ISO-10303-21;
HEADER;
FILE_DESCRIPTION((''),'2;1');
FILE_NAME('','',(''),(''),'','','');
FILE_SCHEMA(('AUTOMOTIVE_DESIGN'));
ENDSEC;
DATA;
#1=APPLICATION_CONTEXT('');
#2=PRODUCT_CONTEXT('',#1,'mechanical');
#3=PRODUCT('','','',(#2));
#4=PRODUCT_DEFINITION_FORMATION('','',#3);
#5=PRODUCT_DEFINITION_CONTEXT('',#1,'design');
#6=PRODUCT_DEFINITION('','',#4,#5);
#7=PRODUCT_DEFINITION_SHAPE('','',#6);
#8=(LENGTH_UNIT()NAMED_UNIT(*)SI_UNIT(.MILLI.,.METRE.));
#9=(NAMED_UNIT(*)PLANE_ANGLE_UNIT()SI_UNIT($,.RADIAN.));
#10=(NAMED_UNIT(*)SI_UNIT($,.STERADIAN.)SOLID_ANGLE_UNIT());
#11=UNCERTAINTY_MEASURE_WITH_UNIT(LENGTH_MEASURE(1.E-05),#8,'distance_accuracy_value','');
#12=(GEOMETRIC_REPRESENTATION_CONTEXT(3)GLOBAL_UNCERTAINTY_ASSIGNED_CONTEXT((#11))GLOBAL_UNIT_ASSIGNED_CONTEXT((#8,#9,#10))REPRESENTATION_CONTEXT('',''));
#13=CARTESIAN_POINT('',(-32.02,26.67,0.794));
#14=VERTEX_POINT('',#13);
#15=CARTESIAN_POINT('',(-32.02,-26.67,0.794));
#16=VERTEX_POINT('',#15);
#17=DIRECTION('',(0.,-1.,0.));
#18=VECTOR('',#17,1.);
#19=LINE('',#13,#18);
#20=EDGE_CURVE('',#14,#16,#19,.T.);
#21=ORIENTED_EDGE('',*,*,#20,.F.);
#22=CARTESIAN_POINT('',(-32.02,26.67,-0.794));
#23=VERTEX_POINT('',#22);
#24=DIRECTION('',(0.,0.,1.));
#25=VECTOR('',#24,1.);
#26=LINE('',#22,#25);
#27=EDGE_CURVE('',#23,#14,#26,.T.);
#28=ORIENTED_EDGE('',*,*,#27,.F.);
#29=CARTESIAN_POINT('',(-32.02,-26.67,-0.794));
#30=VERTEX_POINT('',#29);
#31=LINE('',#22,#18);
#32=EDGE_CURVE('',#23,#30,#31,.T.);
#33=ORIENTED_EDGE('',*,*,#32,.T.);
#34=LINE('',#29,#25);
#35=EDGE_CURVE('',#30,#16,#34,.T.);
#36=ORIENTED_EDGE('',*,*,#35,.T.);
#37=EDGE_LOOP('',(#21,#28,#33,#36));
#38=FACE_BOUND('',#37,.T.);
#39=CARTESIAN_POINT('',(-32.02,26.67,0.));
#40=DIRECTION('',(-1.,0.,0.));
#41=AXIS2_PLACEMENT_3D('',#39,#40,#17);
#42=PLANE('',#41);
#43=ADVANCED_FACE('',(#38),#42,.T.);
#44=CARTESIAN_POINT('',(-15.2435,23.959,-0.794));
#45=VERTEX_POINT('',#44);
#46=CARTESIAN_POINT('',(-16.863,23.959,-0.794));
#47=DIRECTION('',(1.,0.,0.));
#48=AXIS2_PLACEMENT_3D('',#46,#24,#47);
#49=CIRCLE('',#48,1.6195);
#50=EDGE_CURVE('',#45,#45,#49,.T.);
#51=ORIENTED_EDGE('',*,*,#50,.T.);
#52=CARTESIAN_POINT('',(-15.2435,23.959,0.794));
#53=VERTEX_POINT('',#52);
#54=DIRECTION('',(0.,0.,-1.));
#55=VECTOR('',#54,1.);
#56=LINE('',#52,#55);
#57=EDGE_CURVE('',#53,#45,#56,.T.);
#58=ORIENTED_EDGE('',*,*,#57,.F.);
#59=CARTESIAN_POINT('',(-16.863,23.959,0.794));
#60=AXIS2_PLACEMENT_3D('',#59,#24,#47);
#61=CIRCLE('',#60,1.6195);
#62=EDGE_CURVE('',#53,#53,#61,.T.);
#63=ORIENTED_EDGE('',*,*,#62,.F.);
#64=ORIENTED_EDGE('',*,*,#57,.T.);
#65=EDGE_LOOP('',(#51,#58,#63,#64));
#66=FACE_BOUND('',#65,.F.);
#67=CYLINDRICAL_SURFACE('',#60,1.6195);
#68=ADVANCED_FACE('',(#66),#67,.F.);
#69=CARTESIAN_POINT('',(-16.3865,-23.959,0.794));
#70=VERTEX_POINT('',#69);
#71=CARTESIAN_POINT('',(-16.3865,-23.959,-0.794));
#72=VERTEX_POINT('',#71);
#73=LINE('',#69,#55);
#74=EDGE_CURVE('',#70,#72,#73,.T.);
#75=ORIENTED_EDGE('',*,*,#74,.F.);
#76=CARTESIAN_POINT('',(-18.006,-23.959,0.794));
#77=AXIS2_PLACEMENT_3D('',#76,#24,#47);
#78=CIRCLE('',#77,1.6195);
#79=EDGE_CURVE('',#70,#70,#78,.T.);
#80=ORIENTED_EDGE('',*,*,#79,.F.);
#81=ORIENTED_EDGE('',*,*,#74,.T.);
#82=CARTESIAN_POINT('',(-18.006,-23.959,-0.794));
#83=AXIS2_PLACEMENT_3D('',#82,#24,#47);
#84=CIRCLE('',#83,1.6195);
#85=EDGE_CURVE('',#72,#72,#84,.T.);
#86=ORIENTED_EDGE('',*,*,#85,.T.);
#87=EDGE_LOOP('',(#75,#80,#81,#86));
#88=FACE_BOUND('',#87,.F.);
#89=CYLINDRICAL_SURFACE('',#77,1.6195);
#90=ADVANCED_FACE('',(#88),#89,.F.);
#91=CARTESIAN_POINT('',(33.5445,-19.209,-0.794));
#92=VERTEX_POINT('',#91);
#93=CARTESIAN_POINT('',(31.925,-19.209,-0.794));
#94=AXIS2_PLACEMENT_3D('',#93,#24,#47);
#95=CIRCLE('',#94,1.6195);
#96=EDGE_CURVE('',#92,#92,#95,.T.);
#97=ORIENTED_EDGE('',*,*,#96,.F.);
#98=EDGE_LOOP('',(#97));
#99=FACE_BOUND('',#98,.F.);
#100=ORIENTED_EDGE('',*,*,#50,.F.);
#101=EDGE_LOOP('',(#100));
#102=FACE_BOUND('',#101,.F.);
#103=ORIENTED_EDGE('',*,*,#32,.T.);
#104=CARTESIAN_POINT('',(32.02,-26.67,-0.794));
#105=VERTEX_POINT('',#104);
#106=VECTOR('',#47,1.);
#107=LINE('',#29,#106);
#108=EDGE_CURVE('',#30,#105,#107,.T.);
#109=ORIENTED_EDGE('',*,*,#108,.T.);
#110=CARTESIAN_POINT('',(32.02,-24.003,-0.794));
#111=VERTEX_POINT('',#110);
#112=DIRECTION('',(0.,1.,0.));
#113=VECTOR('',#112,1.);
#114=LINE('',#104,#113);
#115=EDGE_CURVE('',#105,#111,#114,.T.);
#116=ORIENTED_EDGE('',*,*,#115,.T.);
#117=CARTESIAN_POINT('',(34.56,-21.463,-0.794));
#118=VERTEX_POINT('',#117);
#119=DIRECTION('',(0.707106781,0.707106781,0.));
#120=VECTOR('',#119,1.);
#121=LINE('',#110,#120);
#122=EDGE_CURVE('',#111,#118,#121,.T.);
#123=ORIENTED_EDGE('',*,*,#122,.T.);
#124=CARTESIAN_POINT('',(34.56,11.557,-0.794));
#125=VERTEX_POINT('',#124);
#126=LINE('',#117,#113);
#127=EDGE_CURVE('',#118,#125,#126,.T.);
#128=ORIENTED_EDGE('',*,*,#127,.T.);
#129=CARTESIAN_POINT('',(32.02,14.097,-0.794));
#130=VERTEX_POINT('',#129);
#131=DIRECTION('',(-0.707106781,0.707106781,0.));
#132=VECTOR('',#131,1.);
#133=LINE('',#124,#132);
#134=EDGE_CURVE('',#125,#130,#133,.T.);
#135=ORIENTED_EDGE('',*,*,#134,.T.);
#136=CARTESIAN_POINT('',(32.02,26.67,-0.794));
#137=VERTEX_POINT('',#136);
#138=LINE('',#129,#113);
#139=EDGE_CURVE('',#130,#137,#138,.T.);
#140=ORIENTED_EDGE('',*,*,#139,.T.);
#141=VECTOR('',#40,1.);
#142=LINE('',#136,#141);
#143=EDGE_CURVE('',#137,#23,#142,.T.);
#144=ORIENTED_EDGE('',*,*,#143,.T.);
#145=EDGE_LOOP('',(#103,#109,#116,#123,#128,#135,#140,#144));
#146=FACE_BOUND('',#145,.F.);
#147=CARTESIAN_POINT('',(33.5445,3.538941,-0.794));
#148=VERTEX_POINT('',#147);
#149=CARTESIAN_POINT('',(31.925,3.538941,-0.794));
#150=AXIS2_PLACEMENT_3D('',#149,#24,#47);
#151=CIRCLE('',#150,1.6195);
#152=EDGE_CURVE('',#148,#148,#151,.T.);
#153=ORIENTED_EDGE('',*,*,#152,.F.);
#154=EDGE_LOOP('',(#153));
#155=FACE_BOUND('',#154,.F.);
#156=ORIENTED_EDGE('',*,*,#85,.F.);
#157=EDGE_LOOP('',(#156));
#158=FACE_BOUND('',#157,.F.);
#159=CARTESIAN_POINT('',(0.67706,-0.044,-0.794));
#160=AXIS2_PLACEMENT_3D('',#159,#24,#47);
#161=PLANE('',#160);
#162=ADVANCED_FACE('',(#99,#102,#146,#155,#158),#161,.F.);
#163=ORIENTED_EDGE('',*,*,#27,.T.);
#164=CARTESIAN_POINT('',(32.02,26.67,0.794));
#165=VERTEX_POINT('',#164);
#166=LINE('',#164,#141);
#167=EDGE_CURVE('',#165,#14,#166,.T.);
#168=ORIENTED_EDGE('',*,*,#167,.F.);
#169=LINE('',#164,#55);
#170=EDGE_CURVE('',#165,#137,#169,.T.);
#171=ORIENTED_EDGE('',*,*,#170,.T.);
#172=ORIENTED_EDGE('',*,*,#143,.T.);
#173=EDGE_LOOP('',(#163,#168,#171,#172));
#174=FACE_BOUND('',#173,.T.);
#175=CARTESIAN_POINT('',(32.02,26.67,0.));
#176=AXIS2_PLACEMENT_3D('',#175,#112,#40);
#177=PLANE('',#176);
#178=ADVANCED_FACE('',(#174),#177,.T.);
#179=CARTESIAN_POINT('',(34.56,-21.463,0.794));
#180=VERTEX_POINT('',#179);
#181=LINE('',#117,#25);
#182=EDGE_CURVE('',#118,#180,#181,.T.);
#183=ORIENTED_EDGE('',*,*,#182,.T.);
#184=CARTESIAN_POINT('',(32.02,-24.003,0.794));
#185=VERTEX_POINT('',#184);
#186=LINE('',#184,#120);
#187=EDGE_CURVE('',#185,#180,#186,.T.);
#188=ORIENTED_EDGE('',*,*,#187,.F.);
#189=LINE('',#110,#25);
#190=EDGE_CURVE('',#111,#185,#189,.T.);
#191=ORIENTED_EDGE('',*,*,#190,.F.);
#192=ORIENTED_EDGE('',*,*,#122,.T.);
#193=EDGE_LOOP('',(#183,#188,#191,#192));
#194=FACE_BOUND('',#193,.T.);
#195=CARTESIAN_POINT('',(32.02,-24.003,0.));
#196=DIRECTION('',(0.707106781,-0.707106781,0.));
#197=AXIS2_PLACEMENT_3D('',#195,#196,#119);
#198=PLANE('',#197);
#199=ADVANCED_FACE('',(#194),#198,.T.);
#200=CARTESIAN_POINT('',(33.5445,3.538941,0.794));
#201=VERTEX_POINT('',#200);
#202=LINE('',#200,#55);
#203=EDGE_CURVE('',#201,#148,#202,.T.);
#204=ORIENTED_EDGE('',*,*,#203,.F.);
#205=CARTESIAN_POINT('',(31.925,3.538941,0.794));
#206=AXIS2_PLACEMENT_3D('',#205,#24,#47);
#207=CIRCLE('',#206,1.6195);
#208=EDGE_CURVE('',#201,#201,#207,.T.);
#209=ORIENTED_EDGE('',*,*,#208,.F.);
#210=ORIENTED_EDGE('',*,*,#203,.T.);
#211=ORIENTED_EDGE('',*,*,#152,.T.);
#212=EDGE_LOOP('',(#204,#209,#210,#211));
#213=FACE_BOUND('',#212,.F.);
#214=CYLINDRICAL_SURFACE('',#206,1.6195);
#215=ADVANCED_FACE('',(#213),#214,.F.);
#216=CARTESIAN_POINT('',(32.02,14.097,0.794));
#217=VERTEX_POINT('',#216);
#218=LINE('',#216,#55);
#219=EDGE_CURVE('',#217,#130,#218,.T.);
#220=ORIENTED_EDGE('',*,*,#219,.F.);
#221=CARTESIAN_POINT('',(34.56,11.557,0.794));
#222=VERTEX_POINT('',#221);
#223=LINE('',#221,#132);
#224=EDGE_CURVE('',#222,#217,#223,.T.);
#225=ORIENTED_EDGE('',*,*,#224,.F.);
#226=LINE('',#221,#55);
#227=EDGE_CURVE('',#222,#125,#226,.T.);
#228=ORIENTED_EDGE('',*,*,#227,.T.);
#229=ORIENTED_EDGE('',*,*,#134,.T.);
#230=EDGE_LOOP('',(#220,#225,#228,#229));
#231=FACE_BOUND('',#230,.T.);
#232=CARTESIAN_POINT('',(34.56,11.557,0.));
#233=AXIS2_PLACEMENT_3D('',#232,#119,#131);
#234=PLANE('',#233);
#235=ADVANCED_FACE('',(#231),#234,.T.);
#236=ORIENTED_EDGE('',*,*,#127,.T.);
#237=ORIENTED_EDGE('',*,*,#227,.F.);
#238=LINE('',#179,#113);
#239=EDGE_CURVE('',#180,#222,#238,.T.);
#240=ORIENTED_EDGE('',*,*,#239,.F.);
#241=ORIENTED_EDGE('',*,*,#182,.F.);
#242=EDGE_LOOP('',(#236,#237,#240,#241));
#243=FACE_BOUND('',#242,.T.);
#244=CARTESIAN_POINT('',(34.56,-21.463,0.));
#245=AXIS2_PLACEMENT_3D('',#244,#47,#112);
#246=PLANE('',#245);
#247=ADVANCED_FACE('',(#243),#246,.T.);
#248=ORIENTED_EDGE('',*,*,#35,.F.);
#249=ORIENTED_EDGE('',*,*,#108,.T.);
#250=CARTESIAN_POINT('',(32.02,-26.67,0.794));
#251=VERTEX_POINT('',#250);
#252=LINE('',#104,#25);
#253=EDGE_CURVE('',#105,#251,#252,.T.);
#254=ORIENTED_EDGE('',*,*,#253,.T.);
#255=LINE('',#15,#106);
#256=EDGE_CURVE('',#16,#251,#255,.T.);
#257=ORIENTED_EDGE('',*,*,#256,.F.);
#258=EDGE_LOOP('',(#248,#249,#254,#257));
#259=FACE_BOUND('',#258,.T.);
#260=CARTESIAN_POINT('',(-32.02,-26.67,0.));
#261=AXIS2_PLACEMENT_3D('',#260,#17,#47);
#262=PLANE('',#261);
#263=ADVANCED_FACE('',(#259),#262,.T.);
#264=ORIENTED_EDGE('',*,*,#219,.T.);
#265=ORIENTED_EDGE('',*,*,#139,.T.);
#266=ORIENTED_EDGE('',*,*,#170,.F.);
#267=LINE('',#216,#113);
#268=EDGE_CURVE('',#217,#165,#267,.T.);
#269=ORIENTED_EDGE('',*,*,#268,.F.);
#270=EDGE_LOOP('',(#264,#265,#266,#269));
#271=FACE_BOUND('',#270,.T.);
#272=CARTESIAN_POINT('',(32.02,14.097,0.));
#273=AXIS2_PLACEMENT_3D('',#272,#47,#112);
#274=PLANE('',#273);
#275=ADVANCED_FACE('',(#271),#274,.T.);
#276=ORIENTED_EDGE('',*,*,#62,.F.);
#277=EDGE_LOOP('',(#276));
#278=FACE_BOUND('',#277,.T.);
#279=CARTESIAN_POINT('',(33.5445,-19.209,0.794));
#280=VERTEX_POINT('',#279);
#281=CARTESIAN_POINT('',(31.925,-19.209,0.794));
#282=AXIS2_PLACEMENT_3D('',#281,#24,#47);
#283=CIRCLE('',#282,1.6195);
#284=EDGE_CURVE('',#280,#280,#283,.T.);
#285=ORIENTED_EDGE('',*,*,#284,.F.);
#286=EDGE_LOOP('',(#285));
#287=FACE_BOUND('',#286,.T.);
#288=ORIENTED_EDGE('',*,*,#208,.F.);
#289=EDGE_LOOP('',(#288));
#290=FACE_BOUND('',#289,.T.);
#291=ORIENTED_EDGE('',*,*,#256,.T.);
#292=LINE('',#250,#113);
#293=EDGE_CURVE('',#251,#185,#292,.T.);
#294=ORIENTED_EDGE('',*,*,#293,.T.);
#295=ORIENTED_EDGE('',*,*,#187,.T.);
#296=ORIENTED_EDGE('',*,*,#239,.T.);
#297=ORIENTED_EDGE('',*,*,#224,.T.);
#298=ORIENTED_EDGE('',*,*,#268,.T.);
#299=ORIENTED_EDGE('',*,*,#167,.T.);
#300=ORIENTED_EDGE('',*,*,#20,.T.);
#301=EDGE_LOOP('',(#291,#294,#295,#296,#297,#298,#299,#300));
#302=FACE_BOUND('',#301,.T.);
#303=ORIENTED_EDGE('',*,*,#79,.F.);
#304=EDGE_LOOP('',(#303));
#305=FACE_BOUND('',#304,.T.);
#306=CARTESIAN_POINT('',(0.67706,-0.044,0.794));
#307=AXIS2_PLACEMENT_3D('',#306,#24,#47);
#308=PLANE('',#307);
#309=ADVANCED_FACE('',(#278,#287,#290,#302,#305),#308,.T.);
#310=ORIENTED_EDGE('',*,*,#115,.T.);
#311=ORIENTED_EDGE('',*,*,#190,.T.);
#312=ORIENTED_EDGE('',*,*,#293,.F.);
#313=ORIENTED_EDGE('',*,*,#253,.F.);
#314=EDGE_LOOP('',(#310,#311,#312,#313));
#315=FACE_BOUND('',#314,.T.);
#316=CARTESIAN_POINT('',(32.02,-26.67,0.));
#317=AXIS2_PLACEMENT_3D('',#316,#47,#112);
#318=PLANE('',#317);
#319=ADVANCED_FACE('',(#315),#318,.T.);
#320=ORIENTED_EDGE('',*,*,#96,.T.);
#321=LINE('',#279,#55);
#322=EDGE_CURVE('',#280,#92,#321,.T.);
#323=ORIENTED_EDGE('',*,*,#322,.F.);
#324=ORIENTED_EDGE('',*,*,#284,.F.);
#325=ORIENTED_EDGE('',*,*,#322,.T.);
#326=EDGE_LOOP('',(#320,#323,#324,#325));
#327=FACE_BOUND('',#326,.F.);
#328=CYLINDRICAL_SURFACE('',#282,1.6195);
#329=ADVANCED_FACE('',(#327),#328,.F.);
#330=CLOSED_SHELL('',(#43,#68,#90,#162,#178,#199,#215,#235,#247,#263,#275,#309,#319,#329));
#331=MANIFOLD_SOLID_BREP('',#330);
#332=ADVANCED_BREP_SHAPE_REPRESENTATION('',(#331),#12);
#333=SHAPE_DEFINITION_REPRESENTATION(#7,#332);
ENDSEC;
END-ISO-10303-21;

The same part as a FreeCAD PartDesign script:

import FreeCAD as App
import Part
import Sketcher

V = App.Vector
Q = App.Units.Quantity


def add_polygon(sketch, points):
    """Adds a closed chain of lines whose ends are joined by coincident constraints."""
    first, n = sketch.GeometryCount, len(points)
    for a, b in zip(points, points[1:] + points[:1]):
        sketch.addGeometry(Part.LineSegment(App.Vector(*a, 0), App.Vector(*b, 0)), False)
    for i in range(n):
        sketch.addConstraint(Sketcher.Constraint("Coincident", first + i, 2, first + (i + 1) % n, 1))

doc = App.newDocument("Part")
body = doc.addObject("PartDesign::Body", "Body")

sketch1 = body.newObject("Sketcher::SketchObject", "Sketch")
sketch1.AttachmentSupport = (doc.getObject("XY_Plane"), [""])
sketch1.MapMode = "FlatFace"
add_polygon(sketch1, [(32, 26.7), (-32, 26.7), (-32, -26.7), (32, -26.7), (32, -24), (34.6, -21.5), (34.6, 11.6), (32, 14.1)])
sketch1.addConstraint(Sketcher.Constraint("Horizontal", 0))
sketch1.addConstraint(Sketcher.Constraint("Vertical", 1))
sketch1.addConstraint(Sketcher.Constraint("Horizontal", 2))
sketch1.addConstraint(Sketcher.Constraint("Vertical", 3))
sketch1.addConstraint(Sketcher.Constraint("Vertical", 5))
sketch1.addConstraint(Sketcher.Constraint("Vertical", 7))
sketch1.addConstraint(Sketcher.Constraint("Symmetric", 0, 2, 2, 2, -1, 1))
sketch1.addConstraint(Sketcher.Constraint("Perpendicular", 4, 6))
sketch1.addConstraint(Sketcher.Constraint("Vertical", 3, 2, 6, 2))
sketch1.addConstraint(Sketcher.Constraint("Equal", 4, 6))
sketch1.addConstraint(Sketcher.Constraint("DistanceY", 1, 2, 1, 1, Q("2.1 in")))
sketch1.addConstraint(Sketcher.Constraint("DistanceY", 5, 1, 5, 2, Q("1.3 in")))
sketch1.addConstraint(Sketcher.Constraint("DistanceX", 3, 2, 4, 2, Q("0.1 in")))
sketch1.addConstraint(Sketcher.Constraint("DistanceY", 3, 1, 3, 2, Q("0.105 in")))
sketch1.addConstraint(Sketcher.Constraint("DistanceX", 0, 2, 0, 1, 64.04))
pad1 = body.newObject("PartDesign::Pad", "Pad")
pad1.Profile = sketch1
pad1.Length = 1.588
pad1.Midplane = True

sketch2 = body.newObject("Sketcher::SketchObject", "Sketch001")
sketch2.AttachmentSupport = (doc.getObject("XY_Plane"), [""])
sketch2.MapMode = "FlatFace"
sketch2.AttachmentOffset = App.Placement(V(0, 0, 0.794), App.Rotation())
sketch2.addGeometry(Part.Circle(V(-16.9, 24, 0), V(0, 0, 1), 1.6), False)
sketch2.addGeometry(Part.Circle(V(-18, -24, 0), V(0, 0, 1), 1.6), False)
sketch2.addGeometry(Part.Circle(V(31.9, 3.5, 0), V(0, 0, 1), 1.6), False)
sketch2.addGeometry(Part.Circle(V(31.9, -19.2, 0), V(0, 0, 1), 1.6), False)
sketch2.addConstraint(Sketcher.Constraint("Equal", 0, 1))
sketch2.addConstraint(Sketcher.Constraint("Equal", 1, 2))
sketch2.addConstraint(Sketcher.Constraint("Equal", 2, 3))
sketch2.addConstraint(Sketcher.Constraint("Vertical", 2, 3, 3, 3))
sketch2.addConstraint(Sketcher.Constraint("Diameter", 0, 3.239))
sketch2.addConstraint(Sketcher.Constraint("DistanceX", 1, 3, 0, 3, Q("0.045 in")))
sketch2.addConstraint(Sketcher.Constraint("DistanceX", 0, 3, -1, 1, 16.863))
sketch2.addConstraint(Sketcher.Constraint("DistanceY", -1, 1, 0, 3, 23.959))
sketch2.addConstraint(Sketcher.Constraint("DistanceY", 1, 3, -1, 1, 23.959))
sketch2.addConstraint(Sketcher.Constraint("DistanceX", -1, 1, 2, 3, 31.925))
sketch2.addConstraint(Sketcher.Constraint("DistanceY", 3, 3, -1, 1, 19.209))
sketch2.addConstraint(Sketcher.Constraint("DistanceY", -1, 1, 2, 3, 3.538941))
pocket1 = body.newObject("PartDesign::Pocket", "Pocket")
pocket1.Profile = sketch2
pocket1.Length = 25

doc.recompute()
